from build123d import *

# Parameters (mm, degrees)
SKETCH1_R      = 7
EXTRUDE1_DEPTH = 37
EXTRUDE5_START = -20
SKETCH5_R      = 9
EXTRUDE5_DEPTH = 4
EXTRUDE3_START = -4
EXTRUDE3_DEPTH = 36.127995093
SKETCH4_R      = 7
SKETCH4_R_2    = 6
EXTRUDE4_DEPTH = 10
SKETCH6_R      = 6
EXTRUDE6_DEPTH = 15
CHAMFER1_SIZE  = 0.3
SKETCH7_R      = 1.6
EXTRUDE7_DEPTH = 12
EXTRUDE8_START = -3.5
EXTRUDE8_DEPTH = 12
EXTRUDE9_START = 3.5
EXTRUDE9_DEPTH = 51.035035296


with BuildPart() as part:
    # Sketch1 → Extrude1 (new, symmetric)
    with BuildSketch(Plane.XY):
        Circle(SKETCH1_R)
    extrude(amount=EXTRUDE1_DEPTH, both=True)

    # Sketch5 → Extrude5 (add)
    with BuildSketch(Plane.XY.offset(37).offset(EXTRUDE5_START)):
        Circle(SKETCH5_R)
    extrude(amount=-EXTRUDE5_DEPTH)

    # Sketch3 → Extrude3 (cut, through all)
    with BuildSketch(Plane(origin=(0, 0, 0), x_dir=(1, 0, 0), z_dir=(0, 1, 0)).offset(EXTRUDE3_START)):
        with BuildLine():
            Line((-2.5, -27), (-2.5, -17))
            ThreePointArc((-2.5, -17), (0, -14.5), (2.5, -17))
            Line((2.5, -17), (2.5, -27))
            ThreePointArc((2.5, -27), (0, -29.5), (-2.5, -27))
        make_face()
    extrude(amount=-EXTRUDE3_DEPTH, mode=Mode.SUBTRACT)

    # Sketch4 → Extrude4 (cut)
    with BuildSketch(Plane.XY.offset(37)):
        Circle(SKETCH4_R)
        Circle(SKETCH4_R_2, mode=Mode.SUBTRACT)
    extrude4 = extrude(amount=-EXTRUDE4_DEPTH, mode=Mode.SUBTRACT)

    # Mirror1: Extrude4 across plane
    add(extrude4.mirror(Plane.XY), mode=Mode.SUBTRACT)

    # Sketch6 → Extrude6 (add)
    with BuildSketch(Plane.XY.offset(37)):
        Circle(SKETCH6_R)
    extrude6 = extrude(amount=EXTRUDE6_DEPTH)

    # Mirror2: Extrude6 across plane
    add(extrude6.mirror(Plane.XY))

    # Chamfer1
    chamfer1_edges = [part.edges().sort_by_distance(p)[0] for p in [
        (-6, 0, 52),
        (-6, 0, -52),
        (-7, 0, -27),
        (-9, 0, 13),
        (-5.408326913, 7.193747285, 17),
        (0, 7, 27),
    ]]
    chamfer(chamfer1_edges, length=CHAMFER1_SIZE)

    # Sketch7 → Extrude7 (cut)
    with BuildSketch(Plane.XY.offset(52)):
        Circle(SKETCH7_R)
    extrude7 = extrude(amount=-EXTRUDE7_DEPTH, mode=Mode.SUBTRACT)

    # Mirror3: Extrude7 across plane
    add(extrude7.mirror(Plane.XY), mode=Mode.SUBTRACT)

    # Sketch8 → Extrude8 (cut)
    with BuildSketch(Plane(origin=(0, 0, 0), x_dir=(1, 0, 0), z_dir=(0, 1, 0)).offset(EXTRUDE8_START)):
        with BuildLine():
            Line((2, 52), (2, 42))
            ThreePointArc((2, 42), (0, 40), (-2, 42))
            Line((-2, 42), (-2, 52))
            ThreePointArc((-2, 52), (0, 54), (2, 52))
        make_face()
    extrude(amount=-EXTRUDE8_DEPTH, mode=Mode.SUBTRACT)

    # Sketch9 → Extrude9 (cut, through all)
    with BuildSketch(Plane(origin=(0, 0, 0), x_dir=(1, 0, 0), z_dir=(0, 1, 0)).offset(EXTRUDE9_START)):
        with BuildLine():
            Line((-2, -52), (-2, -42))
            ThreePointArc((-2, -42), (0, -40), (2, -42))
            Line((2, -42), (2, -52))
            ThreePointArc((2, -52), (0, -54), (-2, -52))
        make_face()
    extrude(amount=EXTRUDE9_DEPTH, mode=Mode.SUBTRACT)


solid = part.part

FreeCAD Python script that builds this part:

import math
import FreeCAD as App
import Part
import Sketcher
from FreeCAD import Vector
Q = App.Units.Quantity


def edges_at(feature, points):
    """Names of the edges that pass closest to the given points."""
    edges = feature.Shape.Edges
    near = lambda p: min(range(len(edges)), key=lambda i: edges[i].distToShape(Part.Vertex(*p))[0])
    return sorted({f"Edge{near(p) + 1}" for p in points})

doc = App.newDocument("Part")
params = doc.addObject("Spreadsheet::Sheet", "Params")
for row, (alias, value) in enumerate([
    ("sketch1_diameter", "14 mm"),
    ("pad1_length", "74 mm"),
    ("sketch2_diameter", "18 mm"),
    ("pad2_length", "4 mm"),
    ("sketch3_radius", "2.5 mm"),
    ("sketch3_height", "10 mm"),
    ("sketch4_diameter", "14 mm"),
    ("sketch4_diameter2", "12 mm"),
    ("pocket2_length", "10 mm"),
    ("sketch5_diameter", "12 mm"),
    ("pad3_length", "15 mm"),
    ("chamfer_size", "0.3 mm"),
    ("sketch6_diameter", "3.2 mm"),
    ("pocket3_length", "12 mm"),
    ("sketch7_radius", "2 mm"),
    ("sketch7_height", "10 mm"),
    ("pocket4_length", "12 mm"),
    ("sketch8_radius", "2 mm"),
    ("sketch8_height", "10 mm"),
], start=1):
    params.set(f"A{row}", alias)
    params.set(f"B{row}", "=" + value)
    params.setAlias(f"B{row}", alias)

body = doc.addObject("PartDesign::Body", "Body")

# Sketch on XY plane
sketch1 = doc.addObject("Sketcher::SketchObject", "Sketch")
body.addObject(sketch1)
sketch1.AttachmentSupport = (doc.XY_Plane, [""])
sketch1.MapMode = "FlatFace"
sketch1.addGeometry(Part.Circle(Vector(0, 0, 0), Vector(0, 0, 1), 7), False)
sketch1.addConstraint(Sketcher.Constraint("Coincident", 0, 3, -1, 1))
sketch1.addConstraint(Sketcher.Constraint("Diameter", 0, Q("14 mm")))
sketch1.setExpression("Constraints[1]", "Params.sketch1_diameter")
pad1 = doc.addObject("PartDesign::Pad", "Pad")
body.addObject(pad1)
pad1.Profile = sketch1
pad1.setExpression("Length", "Params.pad1_length")
pad1.Midplane = True

# Sketch on XY plane
sketch2 = doc.addObject("Sketcher::SketchObject", "Sketch001")
body.addObject(sketch2)
sketch2.AttachmentSupport = (doc.XY_Plane, [""])
sketch2.MapMode = "FlatFace"
sketch2.AttachmentOffset = App.Placement(Vector(0, 0, 17), App.Rotation())
sketch2.addGeometry(Part.Circle(Vector(0, 0, 0), Vector(0, 0, 1), 9), False)
sketch2.addConstraint(Sketcher.Constraint("Coincident", 0, 3, -1, 1))
sketch2.addConstraint(Sketcher.Constraint("Diameter", 0, Q("18 mm")))
sketch2.setExpression("Constraints[1]", "Params.sketch2_diameter")
pad2 = doc.addObject("PartDesign::Pad", "Pad001")
body.addObject(pad2)
pad2.Profile = sketch2
pad2.setExpression("Length", "Params.pad2_length")
pad2.Reversed = True

# Sketch on XZ plane
sketch3 = doc.addObject("Sketcher::SketchObject", "Sketch002")
body.addObject(sketch3)
sketch3.AttachmentSupport = (doc.XZ_Plane, [""])
sketch3.MapMode = "FlatFace"
sketch3.AttachmentOffset = App.Placement(Vector(0, 0, 4), App.Rotation())
sketch3.addGeometry(Part.LineSegment(Vector(-2.5, 17, 0), Vector(-2.5, 27, 0)), False)
sketch3.addGeometry(Part.ArcOfCircle(Part.Circle(Vector(0, 27, 0), Vector(0, 0, 1), 2.5), math.radians(0), math.radians(180)), False)
sketch3.addGeometry(Part.LineSegment(Vector(2.5, 27, 0), Vector(2.5, 17, 0)), False)
sketch3.addGeometry(Part.ArcOfCircle(Part.Circle(Vector(0, 17, 0), Vector(0, 0, 1), 2.5), math.radians(180), math.radians(360)), False)
sketch3.addConstraint(Sketcher.Constraint("Tangent", 0, 2, 1, 2))
sketch3.addConstraint(Sketcher.Constraint("Tangent", 1, 1, 2, 1))
sketch3.addConstraint(Sketcher.Constraint("Tangent", 2, 2, 3, 2))
sketch3.addConstraint(Sketcher.Constraint("Tangent", 3, 1, 0, 1))
sketch3.addConstraint(Sketcher.Constraint("Vertical", 0))
sketch3.addConstraint(Sketcher.Constraint("Vertical", 2))
sketch3.addConstraint(Sketcher.Constraint("PointOnObject", 1, 3, -2))
sketch3.addConstraint(Sketcher.Constraint("Radius", 1, Q("2.5 mm")))
sketch3.addConstraint(Sketcher.Constraint("DistanceY", 0, 1, 0, 2, Q("10 mm")))
sketch3.addConstraint(Sketcher.Constraint("DistanceY", -1, 1, 1, 3, Q("27 mm")))
sketch3.setExpression("Constraints[7]", "Params.sketch3_radius")
sketch3.setExpression("Constraints[8]", "Params.sketch3_height")
pocket1 = doc.addObject("PartDesign::Pocket", "Pocket")
body.addObject(pocket1)
pocket1.Profile = sketch3
pocket1.Type = "ThroughAll"
pocket1.Reversed = True

# Sketch on XY plane
sketch4 = doc.addObject("Sketcher::SketchObject", "Sketch003")
body.addObject(sketch4)
sketch4.AttachmentSupport = (doc.XY_Plane, [""])
sketch4.MapMode = "FlatFace"
sketch4.AttachmentOffset = App.Placement(Vector(0, 0, 37), App.Rotation())
sketch4.addGeometry(Part.Circle(Vector(0, 0, 0), Vector(0, 0, 1), 7), False)
sketch4.addGeometry(Part.Circle(Vector(0, 0, 0), Vector(0, 0, 1), 6), False)
sketch4.addConstraint(Sketcher.Constraint("Coincident", 0, 3, -1, 1))
sketch4.addConstraint(Sketcher.Constraint("Coincident", 1, 3, -1, 1))
sketch4.addConstraint(Sketcher.Constraint("Diameter", 0, Q("14 mm")))
sketch4.addConstraint(Sketcher.Constraint("Diameter", 1, Q("12 mm")))
sketch4.setExpression("Constraints[2]", "Params.sketch4_diameter")
sketch4.setExpression("Constraints[3]", "Params.sketch4_diameter2")
pocket2 = doc.addObject("PartDesign::Pocket", "Pocket001")
body.addObject(pocket2)
pocket2.Profile = sketch4
pocket2.setExpression("Length", "Params.pocket2_length")
doc.recompute()

mirrored = doc.addObject("PartDesign::Mirrored", "Mirrored")
body.addObject(mirrored)
mirrored.Originals = [pocket2]
mirrored.MirrorPlane = (doc.XY_Plane, [""])
body.Tip = mirrored

# Sketch on XY plane
sketch5 = doc.addObject("Sketcher::SketchObject", "Sketch004")
body.addObject(sketch5)
sketch5.AttachmentSupport = (doc.XY_Plane, [""])
sketch5.MapMode = "FlatFace"
sketch5.AttachmentOffset = App.Placement(Vector(0, 0, 37), App.Rotation())
sketch5.addGeometry(Part.Circle(Vector(0, 0, 0), Vector(0, 0, 1), 6), False)
sketch5.addConstraint(Sketcher.Constraint("Coincident", 0, 3, -1, 1))
sketch5.addConstraint(Sketcher.Constraint("Diameter", 0, Q("12 mm")))
sketch5.setExpression("Constraints[1]", "Params.sketch5_diameter")
pad3 = doc.addObject("PartDesign::Pad", "Pad002")
body.addObject(pad3)
pad3.Profile = sketch5
pad3.setExpression("Length", "Params.pad3_length")
doc.recompute()

mirrored2 = doc.addObject("PartDesign::Mirrored", "Mirrored001")
body.addObject(mirrored2)
mirrored2.Originals = [pad3]
mirrored2.MirrorPlane = (doc.XY_Plane, [""])
body.Tip = mirrored2
doc.recompute()

chamfer = doc.addObject("PartDesign::Chamfer", "Chamfer")
body.addObject(chamfer)
chamfer.Base = (mirrored2, edges_at(mirrored2, [
    (-6, 0, 52),
    (-6, 0, -52),
    (-7, 0, -27),
    (-9, 0, 13),
    (-5.408, 7.194, 17),
    (0, 7, 27),
]))
chamfer.setExpression("Size", "Params.chamfer_size")

# Sketch on XY plane
sketch6 = doc.addObject("Sketcher::SketchObject", "Sketch005")
body.addObject(sketch6)
sketch6.AttachmentSupport = (doc.XY_Plane, [""])
sketch6.MapMode = "FlatFace"
sketch6.AttachmentOffset = App.Placement(Vector(0, 0, 52), App.Rotation())
sketch6.addGeometry(Part.Circle(Vector(0, 0, 0), Vector(0, 0, 1), 1.6), False)
sketch6.addConstraint(Sketcher.Constraint("Coincident", 0, 3, -1, 1))
sketch6.addConstraint(Sketcher.Constraint("Diameter", 0, Q("3.2 mm")))
sketch6.setExpression("Constraints[1]", "Params.sketch6_diameter")
pocket3 = doc.addObject("PartDesign::Pocket", "Pocket002")
body.addObject(pocket3)
pocket3.Profile = sketch6
pocket3.setExpression("Length", "Params.pocket3_length")
doc.recompute()

mirrored3 = doc.addObject("PartDesign::Mirrored", "Mirrored002")
body.addObject(mirrored3)
mirrored3.Originals = [pocket3]
mirrored3.MirrorPlane = (doc.XY_Plane, [""])
body.Tip = mirrored3

# Sketch on XZ plane
sketch7 = doc.addObject("Sketcher::SketchObject", "Sketch006")
body.addObject(sketch7)
sketch7.AttachmentSupport = (doc.XZ_Plane, [""])
sketch7.MapMode = "FlatFace"
sketch7.AttachmentOffset = App.Placement(Vector(0, 0, 3.5), App.Rotation())
sketch7.addGeometry(Part.LineSegment(Vector(2, -42, 0), Vector(2, -52, 0)), False)
sketch7.addGeometry(Part.ArcOfCircle(Part.Circle(Vector(0, -52, 0), Vector(0, 0, 1), 2), math.radians(180), math.radians(360)), False)
sketch7.addGeometry(Part.LineSegment(Vector(-2, -52, 0), Vector(-2, -42, 0)), False)
sketch7.addGeometry(Part.ArcOfCircle(Part.Circle(Vector(0, -42, 0), Vector(0, 0, 1), 2), math.radians(0), math.radians(180)), False)
sketch7.addConstraint(Sketcher.Constraint("Tangent", 0, 2, 1, 2))
sketch7.addConstraint(Sketcher.Constraint("Tangent", 1, 1, 2, 1))
sketch7.addConstraint(Sketcher.Constraint("Tangent", 2, 2, 3, 2))
sketch7.addConstraint(Sketcher.Constraint("Tangent", 3, 1, 0, 1))
sketch7.addConstraint(Sketcher.Constraint("Vertical", 0))
sketch7.addConstraint(Sketcher.Constraint("Vertical", 2))
sketch7.addConstraint(Sketcher.Constraint("PointOnObject", 1, 3, -2))
sketch7.addConstraint(Sketcher.Constraint("Radius", 1, Q("2 mm")))
sketch7.addConstraint(Sketcher.Constraint("DistanceY", 0, 2, 0, 1, Q("10 mm")))
sketch7.addConstraint(Sketcher.Constraint("DistanceY", 1, 3, -1, 1, Q("52 mm")))
sketch7.setExpression("Constraints[7]", "Params.sketch7_radius")
sketch7.setExpression("Constraints[8]", "Params.sketch7_height")
pocket4 = doc.addObject("PartDesign::Pocket", "Pocket003")
body.addObject(pocket4)
pocket4.Profile = sketch7
pocket4.setExpression("Length", "Params.pocket4_length")
pocket4.Reversed = True

# Sketch on XZ plane
sketch8 = doc.addObject("Sketcher::SketchObject", "Sketch007")
body.addObject(sketch8)
sketch8.AttachmentSupport = (doc.XZ_Plane, [""])
sketch8.MapMode = "FlatFace"
sketch8.AttachmentOffset = App.Placement(Vector(0, 0, -3.5), App.Rotation())
sketch8.addGeometry(Part.LineSegment(Vector(-2, 42, 0), Vector(-2, 52, 0)), False)
sketch8.addGeometry(Part.ArcOfCircle(Part.Circle(Vector(0, 52, 0), Vector(0, 0, 1), 2), math.radians(0), math.radians(180)), False)
sketch8.addGeometry(Part.LineSegment(Vector(2, 52, 0), Vector(2, 42, 0)), False)
sketch8.addGeometry(Part.ArcOfCircle(Part.Circle(Vector(0, 42, 0), Vector(0, 0, 1), 2), math.radians(180), math.radians(360)), False)
sketch8.addConstraint(Sketcher.Constraint("Tangent", 0, 2, 1, 2))
sketch8.addConstraint(Sketcher.Constraint("Tangent", 1, 1, 2, 1))
sketch8.addConstraint(Sketcher.Constraint("Tangent", 2, 2, 3, 2))
sketch8.addConstraint(Sketcher.Constraint("Tangent", 3, 1, 0, 1))
sketch8.addConstraint(Sketcher.Constraint("Vertical", 0))
sketch8.addConstraint(Sketcher.Constraint("Vertical", 2))
sketch8.addConstraint(Sketcher.Constraint("PointOnObject", 1, 3, -2))
sketch8.addConstraint(Sketcher.Constraint("Radius", 1, Q("2 mm")))
sketch8.addConstraint(Sketcher.Constraint("DistanceY", 0, 1, 0, 2, Q("10 mm")))
sketch8.addConstraint(Sketcher.Constraint("DistanceY", -1, 1, 1, 3, Q("52 mm")))
sketch8.setExpression("Constraints[7]", "Params.sketch8_radius")
sketch8.setExpression("Constraints[8]", "Params.sketch8_height")
pocket5 = doc.addObject("PartDesign::Pocket", "Pocket004")
body.addObject(pocket5)
pocket5.Profile = sketch8
pocket5.Type = "ThroughAll"

doc.recompute()
